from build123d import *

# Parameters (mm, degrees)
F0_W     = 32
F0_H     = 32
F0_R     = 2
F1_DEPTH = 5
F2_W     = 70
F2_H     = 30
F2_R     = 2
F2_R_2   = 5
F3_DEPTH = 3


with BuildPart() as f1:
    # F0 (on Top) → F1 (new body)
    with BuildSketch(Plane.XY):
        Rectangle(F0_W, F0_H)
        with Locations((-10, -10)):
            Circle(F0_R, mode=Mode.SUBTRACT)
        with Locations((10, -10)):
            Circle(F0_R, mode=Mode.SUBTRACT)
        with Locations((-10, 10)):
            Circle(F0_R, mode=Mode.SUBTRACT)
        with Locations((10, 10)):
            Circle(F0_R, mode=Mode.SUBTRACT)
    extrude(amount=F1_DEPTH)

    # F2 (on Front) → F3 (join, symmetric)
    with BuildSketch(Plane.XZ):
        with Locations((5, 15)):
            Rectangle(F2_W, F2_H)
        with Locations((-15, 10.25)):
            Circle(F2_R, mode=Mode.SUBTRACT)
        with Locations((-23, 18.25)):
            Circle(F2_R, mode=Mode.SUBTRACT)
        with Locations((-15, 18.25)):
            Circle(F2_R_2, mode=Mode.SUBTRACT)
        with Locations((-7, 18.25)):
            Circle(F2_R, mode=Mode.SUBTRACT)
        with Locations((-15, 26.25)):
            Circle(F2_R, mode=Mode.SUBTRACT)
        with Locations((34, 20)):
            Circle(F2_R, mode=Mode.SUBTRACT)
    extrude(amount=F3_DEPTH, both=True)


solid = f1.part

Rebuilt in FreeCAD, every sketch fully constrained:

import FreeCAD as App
import Part
import Sketcher
from FreeCAD import Vector

doc = App.newDocument("Part")
params = doc.addObject("Spreadsheet::Sheet", "Params")
for row, (alias, value) in enumerate([
    ("sketch1_diameter", "4 mm"),
    ("sketch1_width", "32 mm"),
    ("pad1_length", "5 mm"),
    ("sketch2_diameter", "4 mm"),
    ("sketch2_diameter2", "10 mm"),
    ("sketch2_width", "70 mm"),
    ("sketch2_height", "30 mm"),
    ("pad2_length", "6 mm"),
], start=1):
    params.set(f"A{row}", alias)
    params.set(f"B{row}", "=" + value)
    params.setAlias(f"B{row}", alias)

body = doc.addObject("PartDesign::Body", "Body")

sketch1 = body.newObject("Sketcher::SketchObject", "Sketch")
sketch1.AttachmentSupport = (doc.getObject("XY_Plane"), [""])
sketch1.MapMode = "FlatFace"
sketch1.addGeometry(Part.LineSegment(Vector(-16, 16, 0), Vector(-16, -16, 0)), False)
sketch1.addGeometry(Part.LineSegment(Vector(-16, -16, 0), Vector(16, -16, 0)), False)
sketch1.addGeometry(Part.LineSegment(Vector(16, -16, 0), Vector(16, 16, 0)), False)
sketch1.addGeometry(Part.LineSegment(Vector(16, 16, 0), Vector(-16, 16, 0)), False)
sketch1.addGeometry(Part.Circle(Vector(-10, -10, 0), Vector(0, 0, 1), 2), False)
sketch1.addGeometry(Part.Circle(Vector(10, -10, 0), Vector(0, 0, 1), 2), False)
sketch1.addGeometry(Part.Circle(Vector(-10, 10, 0), Vector(0, 0, 1), 2), False)
sketch1.addGeometry(Part.Circle(Vector(10, 10, 0), Vector(0, 0, 1), 2), False)
sketch1.addConstraint(Sketcher.Constraint("Coincident", 0, 2, 1, 1))
sketch1.addConstraint(Sketcher.Constraint("Coincident", 1, 2, 2, 1))
sketch1.addConstraint(Sketcher.Constraint("Coincident", 2, 2, 3, 1))
sketch1.addConstraint(Sketcher.Constraint("Coincident", 3, 2, 0, 1))
sketch1.addConstraint(Sketcher.Constraint("Vertical", 0))
sketch1.addConstraint(Sketcher.Constraint("Horizontal", 1))
sketch1.addConstraint(Sketcher.Constraint("Vertical", 2))
sketch1.addConstraint(Sketcher.Constraint("Horizontal", 3))
sketch1.addConstraint(Sketcher.Constraint("Equal", 4, 5))
sketch1.addConstraint(Sketcher.Constraint("Equal", 5, 6))
sketch1.addConstraint(Sketcher.Constraint("Equal", 6, 7))
sketch1.addConstraint(Sketcher.Constraint("Symmetric", 5, 3, 6, 3, -1, 1))
sketch1.addConstraint(Sketcher.Constraint("Symmetric", 4, 3, 7, 3, -1, 1))
sketch1.addConstraint(Sketcher.Constraint("Symmetric", 0, 2, 2, 2, -1, 1))
sketch1.addConstraint(Sketcher.Constraint("Symmetric", 4, 3, 5, 3, -2))
sketch1.addConstraint(Sketcher.Constraint("Equal", 3, 0))
sketch1.addConstraint(Sketcher.Constraint("Diameter", 4, 4.0))
sketch1.addConstraint(Sketcher.Constraint("DistanceX", 1, 1, 1, 2, 32.0))
sketch1.addConstraint(Sketcher.Constraint("DistanceX", 4, 3, -1, 1, 10.0))
sketch1.addConstraint(Sketcher.Constraint("DistanceY", 4, 3, -1, 1, 10.0))
sketch1.setExpression("Constraints[16]", "Params.sketch1_diameter")
sketch1.setExpression("Constraints[17]", "Params.sketch1_width")
pad1 = body.newObject("PartDesign::Pad", "Pad")
pad1.Profile = sketch1
pad1.setExpression("Length", "Params.pad1_length")

sketch2 = body.newObject("Sketcher::SketchObject", "Sketch001")
sketch2.AttachmentSupport = (doc.getObject("XZ_Plane"), [""])
sketch2.MapMode = "FlatFace"
sketch2.addGeometry(Part.LineSegment(Vector(-30, 30, 0), Vector(-30, 0, 0)), False)
sketch2.addGeometry(Part.LineSegment(Vector(-30, 0, 0), Vector(40, 0, 0)), False)
sketch2.addGeometry(Part.LineSegment(Vector(40, 0, 0), Vector(40, 30, 0)), False)
sketch2.addGeometry(Part.LineSegment(Vector(40, 30, 0), Vector(-30, 30, 0)), False)
sketch2.addGeometry(Part.Circle(Vector(-15, 10.2, 0), Vector(0, 0, 1), 2), False)
sketch2.addGeometry(Part.Circle(Vector(-23, 18.2, 0), Vector(0, 0, 1), 2), False)
sketch2.addGeometry(Part.Circle(Vector(-15, 18.2, 0), Vector(0, 0, 1), 5), False)
sketch2.addGeometry(Part.Circle(Vector(-7, 18.2, 0), Vector(0, 0, 1), 2), False)
sketch2.addGeometry(Part.Circle(Vector(-15, 26.2, 0), Vector(0, 0, 1), 2), False)
sketch2.addGeometry(Part.Circle(Vector(34, 20, 0), Vector(0, 0, 1), 2), False)
sketch2.addConstraint(Sketcher.Constraint("Coincident", 0, 2, 1, 1))
sketch2.addConstraint(Sketcher.Constraint("Coincident", 1, 2, 2, 1))
sketch2.addConstraint(Sketcher.Constraint("Coincident", 2, 2, 3, 1))
sketch2.addConstraint(Sketcher.Constraint("Coincident", 3, 2, 0, 1))
sketch2.addConstraint(Sketcher.Constraint("Vertical", 0))
sketch2.addConstraint(Sketcher.Constraint("Horizontal", 1))
sketch2.addConstraint(Sketcher.Constraint("Vertical", 2))
sketch2.addConstraint(Sketcher.Constraint("Horizontal", 3))
sketch2.addConstraint(Sketcher.Constraint("Equal", 4, 5))
sketch2.addConstraint(Sketcher.Constraint("Equal", 5, 7))
sketch2.addConstraint(Sketcher.Constraint("Equal", 7, 8))
sketch2.addConstraint(Sketcher.Constraint("Equal", 8, 9))
sketch2.addConstraint(Sketcher.Constraint("PointOnObject", 0, 2, -1))
sketch2.addConstraint(Sketcher.Constraint("Horizontal", 5, 3, 6, 3))
sketch2.addConstraint(Sketcher.Constraint("Horizontal", 6, 3, 7, 3))
sketch2.addConstraint(Sketcher.Constraint("Vertical", 4, 3, 6, 3))
sketch2.addConstraint(Sketcher.Constraint("Vertical", 6, 3, 8, 3))
sketch2.addConstraint(Sketcher.Constraint("Diameter", 4, 4.0))
sketch2.addConstraint(Sketcher.Constraint("Diameter", 6, 10.0))
sketch2.addConstraint(Sketcher.Constraint("DistanceX", 1, 1, 1, 2, 70.0))
sketch2.addConstraint(Sketcher.Constraint("DistanceY", 0, 2, 0, 1, 30.0))
sketch2.addConstraint(Sketcher.Constraint("DistanceX", 4, 3, -1, 1, 15.0))
sketch2.addConstraint(Sketcher.Constraint("DistanceX", 5, 3, -1, 1, 23.0))
sketch2.addConstraint(Sketcher.Constraint("DistanceX", 7, 3, -1, 1, 7.0))
sketch2.addConstraint(Sketcher.Constraint("DistanceX", -1, 1, 9, 3, 34.0))
sketch2.addConstraint(Sketcher.Constraint("DistanceY", -1, 1, 9, 3, 20.0))
sketch2.addConstraint(Sketcher.Constraint("DistanceX", 0, 2, -1, 1, 30.0))
sketch2.addConstraint(Sketcher.Constraint("DistanceY", 4, 3, 5, 3, 8.0))
sketch2.addConstraint(Sketcher.Constraint("DistanceY", 6, 3, 8, 3, 8.0))
sketch2.addConstraint(Sketcher.Constraint("DistanceY", -1, 1, 4, 3, 10.25))
sketch2.setExpression("Constraints[17]", "Params.sketch2_diameter")
sketch2.setExpression("Constraints[18]", "Params.sketch2_diameter2")
sketch2.setExpression("Constraints[19]", "Params.sketch2_width")
sketch2.setExpression("Constraints[20]", "Params.sketch2_height")
pad2 = body.newObject("PartDesign::Pad", "Pad001")
pad2.Profile = sketch2
pad2.setExpression("Length", "Params.pad2_length")
pad2.Midplane = True

doc.recompute()
